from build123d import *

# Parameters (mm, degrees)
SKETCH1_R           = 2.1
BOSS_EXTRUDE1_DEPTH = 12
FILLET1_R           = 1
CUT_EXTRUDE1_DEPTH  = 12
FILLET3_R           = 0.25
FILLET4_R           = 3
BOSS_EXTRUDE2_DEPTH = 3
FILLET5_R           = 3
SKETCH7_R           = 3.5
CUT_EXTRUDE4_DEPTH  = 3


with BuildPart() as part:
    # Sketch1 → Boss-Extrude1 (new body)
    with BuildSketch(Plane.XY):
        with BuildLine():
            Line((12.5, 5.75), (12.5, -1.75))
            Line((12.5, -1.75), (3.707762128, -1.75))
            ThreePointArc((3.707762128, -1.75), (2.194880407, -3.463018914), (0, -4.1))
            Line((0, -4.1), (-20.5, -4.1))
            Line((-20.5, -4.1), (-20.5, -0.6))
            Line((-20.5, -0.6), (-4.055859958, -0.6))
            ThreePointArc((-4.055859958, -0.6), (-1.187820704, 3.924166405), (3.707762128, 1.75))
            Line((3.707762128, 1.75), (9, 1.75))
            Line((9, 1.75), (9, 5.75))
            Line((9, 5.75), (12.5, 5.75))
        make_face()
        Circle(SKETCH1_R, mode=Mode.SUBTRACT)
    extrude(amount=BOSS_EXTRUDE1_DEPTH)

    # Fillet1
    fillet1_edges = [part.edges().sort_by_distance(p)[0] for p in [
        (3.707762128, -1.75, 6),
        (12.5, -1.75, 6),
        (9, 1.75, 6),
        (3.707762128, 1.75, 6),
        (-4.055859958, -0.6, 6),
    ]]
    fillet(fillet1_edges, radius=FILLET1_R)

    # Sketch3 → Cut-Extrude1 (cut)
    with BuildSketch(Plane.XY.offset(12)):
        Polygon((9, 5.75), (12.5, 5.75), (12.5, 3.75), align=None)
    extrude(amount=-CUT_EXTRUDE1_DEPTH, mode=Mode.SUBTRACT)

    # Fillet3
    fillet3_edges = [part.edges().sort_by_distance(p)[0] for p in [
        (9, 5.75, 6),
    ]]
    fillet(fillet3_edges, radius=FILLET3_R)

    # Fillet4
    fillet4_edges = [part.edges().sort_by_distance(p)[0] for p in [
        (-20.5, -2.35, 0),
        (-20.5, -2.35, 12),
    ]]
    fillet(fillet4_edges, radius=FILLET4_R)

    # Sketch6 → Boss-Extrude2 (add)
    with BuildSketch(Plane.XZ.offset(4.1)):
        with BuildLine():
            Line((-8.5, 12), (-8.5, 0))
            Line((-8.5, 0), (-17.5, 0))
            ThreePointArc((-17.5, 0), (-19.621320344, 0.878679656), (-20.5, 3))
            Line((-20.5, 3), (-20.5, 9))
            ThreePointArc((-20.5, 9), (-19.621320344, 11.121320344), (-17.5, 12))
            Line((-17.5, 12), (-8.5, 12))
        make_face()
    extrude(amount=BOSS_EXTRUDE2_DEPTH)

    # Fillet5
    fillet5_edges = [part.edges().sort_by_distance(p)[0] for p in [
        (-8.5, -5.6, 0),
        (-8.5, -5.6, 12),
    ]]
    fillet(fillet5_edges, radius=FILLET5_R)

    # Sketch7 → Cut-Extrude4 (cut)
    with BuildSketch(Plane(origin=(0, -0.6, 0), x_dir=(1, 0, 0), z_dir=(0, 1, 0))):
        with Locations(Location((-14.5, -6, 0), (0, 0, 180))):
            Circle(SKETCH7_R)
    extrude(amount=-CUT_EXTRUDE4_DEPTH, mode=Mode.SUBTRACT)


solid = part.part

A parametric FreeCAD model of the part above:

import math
import FreeCAD as App
import Part
import Sketcher

V = App.Vector


def edges_at(feature, points):
    """Names of the edges that pass closest to the given points."""
    edges = feature.Shape.Edges
    near = lambda p: min(range(len(edges)), key=lambda i: edges[i].distToShape(Part.Vertex(*p))[0])
    return sorted({f"Edge{near(p) + 1}" for p in points})


def add_polygon(sketch, points):
    """Adds a closed chain of lines whose ends are joined by coincident constraints."""
    first, n = sketch.GeometryCount, len(points)
    for a, b in zip(points, points[1:] + points[:1]):
        sketch.addGeometry(Part.LineSegment(App.Vector(*a, 0), App.Vector(*b, 0)), False)
    for i in range(n):
        sketch.addConstraint(Sketcher.Constraint("Coincident", first + i, 2, first + (i + 1) % n, 1))

doc = App.newDocument("Part")
body = doc.addObject("PartDesign::Body", "Body")

# Sketch on XY plane
sketch1 = doc.addObject("Sketcher::SketchObject", "Sketch")
body.addObject(sketch1)
sketch1.AttachmentSupport = (doc.XY_Plane, [""])
sketch1.MapMode = "FlatFace"
sketch1.addGeometry([
    Part.LineSegment(V(12.5, -1.75, 0), V(12.5, 5.75, 0)),  # 0
    Part.LineSegment(V(12.5, 5.75, 0), V(9, 5.75, 0)),  # 1
    Part.LineSegment(V(9, 5.75, 0), V(9, 1.75, 0)),  # 2
    Part.LineSegment(V(9, 1.75, 0), V(3.707762, 1.75, 0)),  # 3
    Part.ArcOfCircle(Part.Circle(V(0, 0, 0), V(0, 0, 1), 4.1), math.radians(25.266505), math.radians(188.414968)),  # 4
    Part.LineSegment(V(-4.05586, -0.6, 0), V(-20.5, -0.6, 0)),  # 5
    Part.LineSegment(V(-20.5, -0.6, 0), V(-20.5, -4.1, 0)),  # 6
    Part.LineSegment(V(-20.5, -4.1, 0), V(0, -4.1, 0)),  # 7
    Part.ArcOfCircle(Part.Circle(V(0, 0, 0), V(0, 0, 1), 4.1), math.radians(-90), math.radians(-25.266505)),  # 8
    Part.LineSegment(V(3.707762, -1.75, 0), V(12.5, -1.75, 0)),  # 9
    Part.Circle(V(0, 0, 0), V(0, 0, 1), 2.1),  # 10
], False)
sketch1.addConstraint([
    Sketcher.Constraint("Coincident", 0, 2, 1, 1),
    Sketcher.Constraint("Coincident", 1, 2, 2, 1),
    Sketcher.Constraint("Coincident", 2, 2, 3, 1),
    Sketcher.Constraint("Coincident", 3, 2, 4, 1),
    Sketcher.Constraint("Coincident", 4, 2, 5, 1),
    Sketcher.Constraint("Coincident", 5, 2, 6, 1),
    Sketcher.Constraint("Coincident", 6, 2, 7, 1),
    Sketcher.Constraint("Tangent", 7, 2, 8, 1),
    Sketcher.Constraint("Coincident", 8, 2, 9, 1),
    Sketcher.Constraint("Coincident", 9, 2, 0, 1),
    Sketcher.Constraint("Vertical", 0),
    Sketcher.Constraint("Horizontal", 1),
    Sketcher.Constraint("Vertical", 2),
    Sketcher.Constraint("Horizontal", 3),
    Sketcher.Constraint("Horizontal", 5),
    Sketcher.Constraint("Vertical", 6),
    Sketcher.Constraint("Horizontal", 7),
    Sketcher.Constraint("Horizontal", 9),
    Sketcher.Constraint("Coincident", 4, 3, -1, 1),
    Sketcher.Constraint("Coincident", 8, 3, -1, 1),
    Sketcher.Constraint("Coincident", 10, 3, -1, 1),
    Sketcher.Constraint("Equal", 4, 8),
    Sketcher.Constraint("Vertical", 3, 2, 8, 2),
    Sketcher.Constraint("Equal", 1, 6),
    Sketcher.Constraint("Diameter", 10, 4.2),
    Sketcher.Constraint("Radius", 4, 4.1),
    Sketcher.Constraint("DistanceY", 2, 2, 2, 1, 4.0),
    Sketcher.Constraint("DistanceX", 1, 2, 1, 1, 3.5),
    Sketcher.Constraint("DistanceX", 7, 1, 7, 2, 20.5),
    Sketcher.Constraint("DistanceY", 0, 1, 0, 2, 7.5),
    Sketcher.Constraint("DistanceX", -1, 1, 1, 2, 9.0),
])
pad1 = doc.addObject("PartDesign::Pad", "Pad")
body.addObject(pad1)
pad1.Profile = sketch1
pad1.Length = 12
doc.recompute()

fillet = doc.addObject("PartDesign::Fillet", "Fillet")
body.addObject(fillet)
fillet.Base = (pad1, edges_at(pad1, [
    (3.708, -1.75, 6),
    (12.5, -1.75, 6),
    (9, 1.75, 6),
    (3.708, 1.75, 6),
    (-4.056, -0.6, 6),
]))
fillet.Radius = 1

# Sketch on XY plane
sketch2 = doc.addObject("Sketcher::SketchObject", "Sketch001")
body.addObject(sketch2)
sketch2.AttachmentSupport = (doc.XY_Plane, [""])
sketch2.MapMode = "FlatFace"
sketch2.AttachmentOffset = App.Placement(V(0, 0, 12), App.Rotation())
add_polygon(sketch2, [(12.5, 5.75), (9, 5.75), (12.5, 3.75)])  # lines 0-2
sketch2.addConstraint([
    Sketcher.Constraint("Horizontal", 0),
    Sketcher.Constraint("Vertical", 2),
    Sketcher.Constraint("DistanceY", 2, 1, 2, 2, 2.0),
    Sketcher.Constraint("DistanceX", 0, 2, 0, 1, 3.5),
    Sketcher.Constraint("DistanceX", -1, 1, 0, 2, 9.0),
    Sketcher.Constraint("DistanceY", -1, 1, 0, 2, 5.75),
])
pocket1 = doc.addObject("PartDesign::Pocket", "Pocket")
body.addObject(pocket1)
pocket1.Profile = sketch2
pocket1.Length = 12
doc.recompute()

fillet2 = doc.addObject("PartDesign::Fillet", "Fillet001")
body.addObject(fillet2)
fillet2.Base = (pocket1, edges_at(pocket1, [(9, 5.75, 6)]))
fillet2.Radius = 0.25
doc.recompute()

fillet3 = doc.addObject("PartDesign::Fillet", "Fillet002")
body.addObject(fillet3)
fillet3.Base = (fillet2, edges_at(fillet2, [(-20.5, -2.35, 0), (-20.5, -2.35, 12)]))
fillet3.Radius = 3

# Sketch on XZ plane
sketch3 = doc.addObject("Sketcher::SketchObject", "Sketch002")
body.addObject(sketch3)
sketch3.AttachmentSupport = (doc.XZ_Plane, [""])
sketch3.MapMode = "FlatFace"
sketch3.AttachmentOffset = App.Placement(V(0, 0, 4.1), App.Rotation())
sketch3.addGeometry([
    Part.LineSegment(V(-8.5, 0, 0), V(-8.5, 12, 0)),  # 0
    Part.LineSegment(V(-8.5, 12, 0), V(-17.5, 12, 0)),  # 1
    Part.ArcOfCircle(Part.Circle(V(-17.5, 9, 0), V(0, 0, 1), 3), math.radians(90), math.radians(180)),  # 2
    Part.LineSegment(V(-20.5, 9, 0), V(-20.5, 3, 0)),  # 3
    Part.ArcOfCircle(Part.Circle(V(-17.5, 3, 0), V(0, 0, 1), 3), math.radians(180), math.radians(270)),  # 4
    Part.LineSegment(V(-17.5, 0, 0), V(-8.5, 0, 0)),  # 5
], False)
sketch3.addConstraint([
    Sketcher.Constraint("Coincident", 0, 2, 1, 1),
    Sketcher.Constraint("Tangent", 1, 2, 2, 1),
    Sketcher.Constraint("Tangent", 2, 2, 3, 1),
    Sketcher.Constraint("Tangent", 3, 2, 4, 1),
    Sketcher.Constraint("Tangent", 4, 2, 5, 1),
    Sketcher.Constraint("Coincident", 5, 2, 0, 1),
    Sketcher.Constraint("Vertical", 0),
    Sketcher.Constraint("Horizontal", 1),
    Sketcher.Constraint("Vertical", 3),
    Sketcher.Constraint("Horizontal", 5),
    Sketcher.Constraint("Equal", 2, 4),
    Sketcher.Constraint("PointOnObject", 4, 2, -1),
    Sketcher.Constraint("Radius", 2, 3.0),
    Sketcher.Constraint("DistanceX", 1, 2, 1, 1, 9.0),
    Sketcher.Constraint("DistanceY", 0, 1, 0, 2, 12.0),
    Sketcher.Constraint("DistanceX", 2, 3, -1, 1, 17.5),
])
pad2 = doc.addObject("PartDesign::Pad", "Pad001")
body.addObject(pad2)
pad2.Profile = sketch3
pad2.Length = 3
doc.recompute()

fillet4 = doc.addObject("PartDesign::Fillet", "Fillet003")
body.addObject(fillet4)
fillet4.Base = (pad2, edges_at(pad2, [(-8.5, -5.6, 0), (-8.5, -5.6, 12)]))
fillet4.Radius = 3

# Sketch on XZ plane
sketch4 = doc.addObject("Sketcher::SketchObject", "Sketch003")
body.addObject(sketch4)
sketch4.AttachmentSupport = (doc.XZ_Plane, [""])
sketch4.MapMode = "FlatFace"
sketch4.AttachmentOffset = App.Placement(V(0, 0, 0.6), App.Rotation())
sketch4.addGeometry(Part.Circle(V(-14.5, 6, 0), V(0, 0, 1), 3.5), False)
sketch4.addConstraint([
    Sketcher.Constraint("Diameter", 0, 7.0),
    Sketcher.Constraint("DistanceY", -1, 1, 0, 3, 6.0),
    Sketcher.Constraint("DistanceX", 0, 3, -1, 1, 14.5),
])
pocket2 = doc.addObject("PartDesign::Pocket", "Pocket001")
body.addObject(pocket2)
pocket2.Profile = sketch4
pocket2.Length = 3
pocket2.Reversed = True

doc.recompute()
